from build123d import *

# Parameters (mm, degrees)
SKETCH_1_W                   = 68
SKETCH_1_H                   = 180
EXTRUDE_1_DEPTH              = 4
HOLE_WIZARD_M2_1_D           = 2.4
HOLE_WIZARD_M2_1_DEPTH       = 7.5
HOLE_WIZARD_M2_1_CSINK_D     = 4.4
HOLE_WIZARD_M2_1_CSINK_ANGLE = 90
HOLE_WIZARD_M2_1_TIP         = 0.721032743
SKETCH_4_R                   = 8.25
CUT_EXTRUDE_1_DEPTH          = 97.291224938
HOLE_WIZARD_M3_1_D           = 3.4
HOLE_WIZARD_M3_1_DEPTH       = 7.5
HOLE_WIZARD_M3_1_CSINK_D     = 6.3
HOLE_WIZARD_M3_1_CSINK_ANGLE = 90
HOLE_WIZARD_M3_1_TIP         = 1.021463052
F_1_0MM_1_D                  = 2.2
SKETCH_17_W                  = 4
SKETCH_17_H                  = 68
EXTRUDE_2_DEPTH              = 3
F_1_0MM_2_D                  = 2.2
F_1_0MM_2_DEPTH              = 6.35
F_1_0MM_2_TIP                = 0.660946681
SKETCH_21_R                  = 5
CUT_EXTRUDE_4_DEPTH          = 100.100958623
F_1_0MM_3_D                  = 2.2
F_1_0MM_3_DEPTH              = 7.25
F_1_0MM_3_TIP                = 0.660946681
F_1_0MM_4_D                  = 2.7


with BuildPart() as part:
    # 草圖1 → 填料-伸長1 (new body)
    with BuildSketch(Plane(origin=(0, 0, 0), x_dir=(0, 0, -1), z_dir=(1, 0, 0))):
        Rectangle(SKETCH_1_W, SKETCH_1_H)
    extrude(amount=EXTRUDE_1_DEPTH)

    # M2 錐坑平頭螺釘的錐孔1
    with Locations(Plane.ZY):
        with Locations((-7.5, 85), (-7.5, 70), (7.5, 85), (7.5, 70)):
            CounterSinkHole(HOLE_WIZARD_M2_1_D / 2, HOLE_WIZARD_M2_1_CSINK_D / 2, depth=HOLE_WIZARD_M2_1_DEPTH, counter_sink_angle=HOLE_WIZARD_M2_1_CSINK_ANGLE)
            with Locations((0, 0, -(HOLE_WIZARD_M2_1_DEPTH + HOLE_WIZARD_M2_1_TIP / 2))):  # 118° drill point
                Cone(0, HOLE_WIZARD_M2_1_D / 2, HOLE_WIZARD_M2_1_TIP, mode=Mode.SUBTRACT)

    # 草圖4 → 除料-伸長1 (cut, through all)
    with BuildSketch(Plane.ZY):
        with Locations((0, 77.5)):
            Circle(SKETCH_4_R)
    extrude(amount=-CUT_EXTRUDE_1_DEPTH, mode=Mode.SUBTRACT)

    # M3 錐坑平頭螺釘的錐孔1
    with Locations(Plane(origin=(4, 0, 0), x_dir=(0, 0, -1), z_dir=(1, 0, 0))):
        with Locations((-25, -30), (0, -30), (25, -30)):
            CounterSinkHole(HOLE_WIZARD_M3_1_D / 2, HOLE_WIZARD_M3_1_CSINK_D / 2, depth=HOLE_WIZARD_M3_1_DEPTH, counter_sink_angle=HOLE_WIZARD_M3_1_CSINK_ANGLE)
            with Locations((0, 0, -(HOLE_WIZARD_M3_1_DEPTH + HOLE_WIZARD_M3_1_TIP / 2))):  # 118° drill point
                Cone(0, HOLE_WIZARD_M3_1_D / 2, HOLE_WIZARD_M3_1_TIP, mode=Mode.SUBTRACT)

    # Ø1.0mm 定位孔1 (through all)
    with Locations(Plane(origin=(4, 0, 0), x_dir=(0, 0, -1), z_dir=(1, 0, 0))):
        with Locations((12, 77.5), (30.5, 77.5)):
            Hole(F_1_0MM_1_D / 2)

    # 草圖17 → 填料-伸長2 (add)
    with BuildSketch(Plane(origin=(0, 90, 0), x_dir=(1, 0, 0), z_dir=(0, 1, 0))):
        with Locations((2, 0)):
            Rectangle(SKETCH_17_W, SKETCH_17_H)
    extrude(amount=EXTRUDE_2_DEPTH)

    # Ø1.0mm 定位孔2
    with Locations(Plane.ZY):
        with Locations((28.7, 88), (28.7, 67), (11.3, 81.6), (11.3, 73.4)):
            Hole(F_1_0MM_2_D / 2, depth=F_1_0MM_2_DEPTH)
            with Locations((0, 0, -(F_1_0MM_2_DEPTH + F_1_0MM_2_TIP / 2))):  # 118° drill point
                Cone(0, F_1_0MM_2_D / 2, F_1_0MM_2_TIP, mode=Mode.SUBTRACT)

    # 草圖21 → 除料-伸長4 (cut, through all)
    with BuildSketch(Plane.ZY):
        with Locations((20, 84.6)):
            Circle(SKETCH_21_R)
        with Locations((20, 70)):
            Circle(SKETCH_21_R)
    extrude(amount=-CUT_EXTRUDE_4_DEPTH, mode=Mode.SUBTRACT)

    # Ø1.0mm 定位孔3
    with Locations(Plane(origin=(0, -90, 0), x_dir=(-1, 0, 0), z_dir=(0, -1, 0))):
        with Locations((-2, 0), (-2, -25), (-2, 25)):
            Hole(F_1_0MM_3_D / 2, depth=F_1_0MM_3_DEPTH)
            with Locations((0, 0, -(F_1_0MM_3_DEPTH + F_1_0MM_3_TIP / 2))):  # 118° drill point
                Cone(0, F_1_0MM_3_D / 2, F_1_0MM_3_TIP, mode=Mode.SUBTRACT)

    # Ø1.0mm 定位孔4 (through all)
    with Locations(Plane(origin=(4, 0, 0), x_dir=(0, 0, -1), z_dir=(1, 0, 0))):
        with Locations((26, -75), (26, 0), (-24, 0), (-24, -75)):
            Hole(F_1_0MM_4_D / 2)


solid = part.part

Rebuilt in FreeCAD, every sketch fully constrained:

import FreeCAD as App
import Part
import Sketcher

V = App.Vector


def add_polygon(sketch, points):
    """Adds a closed chain of lines whose ends are joined by coincident constraints."""
    first, n = sketch.GeometryCount, len(points)
    for a, b in zip(points, points[1:] + points[:1]):
        sketch.addGeometry(Part.LineSegment(App.Vector(*a, 0), App.Vector(*b, 0)), False)
    for i in range(n):
        sketch.addConstraint(Sketcher.Constraint("Coincident", first + i, 2, first + (i + 1) % n, 1))

doc = App.newDocument("Part")
body = doc.addObject("PartDesign::Body", "Body")

# Sketch on YZ plane
sketch1 = doc.addObject("Sketcher::SketchObject", "Sketch")
body.addObject(sketch1)
sketch1.AttachmentSupport = (doc.YZ_Plane, [""])
sketch1.MapMode = "FlatFace"
add_polygon(sketch1, [(90, 34), (-90, 34), (-90, -34), (90, -34)])  # lines 0-3
sketch1.addConstraint(Sketcher.Constraint("Horizontal", 0))
sketch1.addConstraint(Sketcher.Constraint("Vertical", 1))
sketch1.addConstraint(Sketcher.Constraint("Horizontal", 2))
sketch1.addConstraint(Sketcher.Constraint("Vertical", 3))
sketch1.addConstraint(Sketcher.Constraint("Symmetric", 0, 2, 2, 2, -1, 1))
sketch1.addConstraint(Sketcher.Constraint("DistanceX", 0, 2, 0, 1, 180.0))
sketch1.addConstraint(Sketcher.Constraint("DistanceY", 1, 2, 1, 1, 68.0))
pad1 = doc.addObject("PartDesign::Pad", "Pad")
body.addObject(pad1)
pad1.Profile = sketch1
pad1.Length = 4

# Sketch on YZ plane
sketch2 = doc.addObject("Sketcher::SketchObject", "Sketch001")
body.addObject(sketch2)
sketch2.AttachmentSupport = (doc.YZ_Plane, [""])
sketch2.MapMode = "FlatFace"
sketch2.addGeometry(Part.Circle(V(85, -7.5, 0), V(0, 0, 1), 1.2), False)
sketch2.addGeometry(Part.Circle(V(70, -7.5, 0), V(0, 0, 1), 1.2), False)
sketch2.addGeometry(Part.Circle(V(85, 7.5, 0), V(0, 0, 1), 1.2), False)
sketch2.addGeometry(Part.Circle(V(70, 7.5, 0), V(0, 0, 1), 1.2), False)
sketch2.addConstraint(Sketcher.Constraint("Equal", 0, 1))
sketch2.addConstraint(Sketcher.Constraint("Equal", 1, 2))
sketch2.addConstraint(Sketcher.Constraint("Equal", 2, 3))
sketch2.addConstraint(Sketcher.Constraint("Symmetric", 0, 3, 2, 3, -1))
sketch2.addConstraint(Sketcher.Constraint("Symmetric", 1, 3, 3, 3, -1))
sketch2.addConstraint(Sketcher.Constraint("Horizontal", 0, 3, 1, 3))
sketch2.addConstraint(Sketcher.Constraint("Diameter", 0, 2.4))
sketch2.addConstraint(Sketcher.Constraint("DistanceX", -1, 1, 0, 3, 85.0))
sketch2.addConstraint(Sketcher.Constraint("DistanceX", -1, 1, 1, 3, 70.0))
sketch2.addConstraint(Sketcher.Constraint("DistanceY", 0, 3, 2, 3, 15.0))
doc.recompute()
hole = doc.addObject("PartDesign::Hole", "Hole")
body.addObject(hole)
hole.Profile = sketch2
hole.ThreadType = "None"
hole.Diameter = 2.4
hole.DepthType = "Dimension"
hole.Depth = 7.5
hole.DrillPoint = "Angled"
hole.DrillPointAngle = 118
hole.HoleCutType = "Countersink"
hole.HoleCutDiameter = 4.4
hole.HoleCutCountersinkAngle = 90
hole.Reversed = True

# Sketch on YZ plane
sketch3 = doc.addObject("Sketcher::SketchObject", "Sketch002")
body.addObject(sketch3)
sketch3.AttachmentSupport = (doc.YZ_Plane, [""])
sketch3.MapMode = "FlatFace"
sketch3.addGeometry(Part.Circle(V(78, 0, 0), V(0, 0, 1), 8), False)
sketch3.addConstraint(Sketcher.Constraint("PointOnObject", 0, 3, -1))
sketch3.addConstraint(Sketcher.Constraint("Diameter", 0, 16.5))
sketch3.addConstraint(Sketcher.Constraint("DistanceX", -1, 1, 0, 3, 77.5))
pocket1 = doc.addObject("PartDesign::Pocket", "Pocket")
body.addObject(pocket1)
pocket1.Profile = sketch3
pocket1.Type = "ThroughAll"
pocket1.Reversed = True

# Sketch on YZ plane
sketch4 = doc.addObject("Sketcher::SketchObject", "Sketch003")
body.addObject(sketch4)
sketch4.AttachmentSupport = (doc.YZ_Plane, [""])
sketch4.MapMode = "FlatFace"
sketch4.AttachmentOffset = App.Placement(V(0, 0, 4), App.Rotation())
sketch4.addGeometry(Part.Circle(V(-30, 25, 0), V(0, 0, 1), 1.7), False)
sketch4.addGeometry(Part.Circle(V(-30, 0, 0), V(0, 0, 1), 1.7), False)
sketch4.addGeometry(Part.Circle(V(-30, -25, 0), V(0, 0, 1), 1.7), False)
sketch4.addConstraint(Sketcher.Constraint("Equal", 0, 1))
sketch4.addConstraint(Sketcher.Constraint("Equal", 1, 2))
sketch4.addConstraint(Sketcher.Constraint("Symmetric", 0, 3, 2, 3, -1))
sketch4.addConstraint(Sketcher.Constraint("PointOnObject", 1, 3, -1))
sketch4.addConstraint(Sketcher.Constraint("Vertical", 0, 3, 1, 3))
sketch4.addConstraint(Sketcher.Constraint("Diameter", 0, 3.4))
sketch4.addConstraint(Sketcher.Constraint("DistanceX", 0, 3, -1, 1, 30.0))
sketch4.addConstraint(Sketcher.Constraint("DistanceY", -1, 1, 0, 3, 25.0))
doc.recompute()
hole2 = doc.addObject("PartDesign::Hole", "Hole001")
body.addObject(hole2)
hole2.Profile = sketch4
hole2.ThreadType = "None"
hole2.Diameter = 3.4
hole2.DepthType = "Dimension"
hole2.Depth = 7.5
hole2.DrillPoint = "Angled"
hole2.DrillPointAngle = 118
hole2.HoleCutType = "Countersink"
hole2.HoleCutDiameter = 6.3
hole2.HoleCutCountersinkAngle = 90

# Sketch on YZ plane
sketch5 = doc.addObject("Sketcher::SketchObject", "Sketch004")
body.addObject(sketch5)
sketch5.AttachmentSupport = (doc.YZ_Plane, [""])
sketch5.MapMode = "FlatFace"
sketch5.AttachmentOffset = App.Placement(V(0, 0, 4), App.Rotation())
sketch5.addGeometry(Part.Circle(V(77.5, -12, 0), V(0, 0, 1), 1.1), False)
sketch5.addGeometry(Part.Circle(V(77.5, -30.5, 0), V(0, 0, 1), 1.1), False)
sketch5.addConstraint(Sketcher.Constraint("Equal", 0, 1))
sketch5.addConstraint(Sketcher.Constraint("Vertical", 0, 3, 1, 3))
sketch5.addConstraint(Sketcher.Constraint("Diameter", 0, 2.2))
sketch5.addConstraint(Sketcher.Constraint("DistanceY", 0, 3, -1, 1, 12.0))
sketch5.addConstraint(Sketcher.Constraint("DistanceX", -1, 1, 0, 3, 77.5))
sketch5.addConstraint(Sketcher.Constraint("DistanceY", 1, 3, -1, 1, 30.5))
doc.recompute()
hole3 = doc.addObject("PartDesign::Hole", "Hole002")
body.addObject(hole3)
hole3.Profile = sketch5
hole3.ThreadType = "None"
hole3.Diameter = 2.2
hole3.DepthType = "ThroughAll"

# Sketch on XZ plane
sketch6 = doc.addObject("Sketcher::SketchObject", "Sketch005")
body.addObject(sketch6)
sketch6.AttachmentSupport = (doc.XZ_Plane, [""])
sketch6.MapMode = "FlatFace"
sketch6.AttachmentOffset = App.Placement(V(0, 0, -90), App.Rotation())
add_polygon(sketch6, [(0, -34), (0, 34), (4, 34), (4, -34)])  # lines 0-3
sketch6.addConstraint(Sketcher.Constraint("Vertical", 0))
sketch6.addConstraint(Sketcher.Constraint("Horizontal", 1))
sketch6.addConstraint(Sketcher.Constraint("Vertical", 2))
sketch6.addConstraint(Sketcher.Constraint("Horizontal", 3))
sketch6.addConstraint(Sketcher.Constraint("Symmetric", 0, 2, 3, 2, -1, 1))
sketch6.addConstraint(Sketcher.Constraint("DistanceX", 1, 1, 1, 2, 4.0))
sketch6.addConstraint(Sketcher.Constraint("DistanceY", 0, 1, 0, 2, 68.0))
pad2 = doc.addObject("PartDesign::Pad", "Pad001")
body.addObject(pad2)
pad2.Profile = sketch6
pad2.Length = 3
pad2.Reversed = True

# Sketch on YZ plane
sketch7 = doc.addObject("Sketcher::SketchObject", "Sketch006")
body.addObject(sketch7)
sketch7.AttachmentSupport = (doc.YZ_Plane, [""])
sketch7.MapMode = "FlatFace"
sketch7.addGeometry(Part.Circle(V(88, 28.7, 0), V(0, 0, 1), 1.1), False)
sketch7.addGeometry(Part.Circle(V(67, 28.7, 0), V(0, 0, 1), 1.1), False)
sketch7.addGeometry(Part.Circle(V(81.6, 11.3, 0), V(0, 0, 1), 1.1), False)
sketch7.addGeometry(Part.Circle(V(73.4, 11.3, 0), V(0, 0, 1), 1.1), False)
sketch7.addConstraint(Sketcher.Constraint("Equal", 0, 1))
sketch7.addConstraint(Sketcher.Constraint("Equal", 1, 2))
sketch7.addConstraint(Sketcher.Constraint("Equal", 2, 3))
sketch7.addConstraint(Sketcher.Constraint("Horizontal", 0, 3, 1, 3))
sketch7.addConstraint(Sketcher.Constraint("Horizontal", 2, 3, 3, 3))
sketch7.addConstraint(Sketcher.Constraint("Diameter", 0, 2.2))
sketch7.addConstraint(Sketcher.Constraint("DistanceX", -1, 1, 0, 3, 88.0))
sketch7.addConstraint(Sketcher.Constraint("DistanceX", -1, 1, 1, 3, 67.0))
sketch7.addConstraint(Sketcher.Constraint("DistanceY", -1, 1, 0, 3, 28.7))
sketch7.addConstraint(Sketcher.Constraint("DistanceX", -1, 1, 2, 3, 81.6))
sketch7.addConstraint(Sketcher.Constraint("DistanceY", -1, 1, 2, 3, 11.3))
sketch7.addConstraint(Sketcher.Constraint("DistanceX", -1, 1, 3, 3, 73.4))
doc.recompute()
hole4 = doc.addObject("PartDesign::Hole", "Hole003")
body.addObject(hole4)
hole4.Profile = sketch7
hole4.ThreadType = "None"
hole4.Diameter = 2.2
hole4.DepthType = "Dimension"
hole4.Depth = 6.35
hole4.DrillPoint = "Angled"
hole4.DrillPointAngle = 118
hole4.Reversed = True

# Sketch on YZ plane
sketch8 = doc.addObject("Sketcher::SketchObject", "Sketch007")
body.addObject(sketch8)
sketch8.AttachmentSupport = (doc.YZ_Plane, [""])
sketch8.MapMode = "FlatFace"
sketch8.addGeometry(Part.Circle(V(85, 20, 0), V(0, 0, 1), 5), False)
sketch8.addGeometry(Part.Circle(V(70, 20, 0), V(0, 0, 1), 5), False)
sketch8.addConstraint(Sketcher.Constraint("Equal", 0, 1))
sketch8.addConstraint(Sketcher.Constraint("Horizontal", 0, 3, 1, 3))
sketch8.addConstraint(Sketcher.Constraint("Diameter", 0, 10.0))
sketch8.addConstraint(Sketcher.Constraint("DistanceY", -1, 1, 0, 3, 20.0))
sketch8.addConstraint(Sketcher.Constraint("DistanceX", -1, 1, 1, 3, 70.0))
sketch8.addConstraint(Sketcher.Constraint("DistanceX", -1, 1, 0, 3, 84.6))
pocket2 = doc.addObject("PartDesign::Pocket", "Pocket001")
body.addObject(pocket2)
pocket2.Profile = sketch8
pocket2.Type = "ThroughAll"
pocket2.Reversed = True

# Sketch on XZ plane
sketch9 = doc.addObject("Sketcher::SketchObject", "Sketch008")
body.addObject(sketch9)
sketch9.AttachmentSupport = (doc.XZ_Plane, [""])
sketch9.MapMode = "FlatFace"
sketch9.AttachmentOffset = App.Placement(V(0, 0, 90), App.Rotation())
sketch9.addGeometry(Part.Circle(V(2, 0, 0), V(0, 0, 1), 1.1), False)
sketch9.addGeometry(Part.Circle(V(2, 25, 0), V(0, 0, 1), 1.1), False)
sketch9.addGeometry(Part.Circle(V(2, -25, 0), V(0, 0, 1), 1.1), False)
sketch9.addConstraint(Sketcher.Constraint("Equal", 0, 1))
sketch9.addConstraint(Sketcher.Constraint("Equal", 1, 2))
sketch9.addConstraint(Sketcher.Constraint("Symmetric", 1, 3, 2, 3, -1))
sketch9.addConstraint(Sketcher.Constraint("PointOnObject", 0, 3, -1))
sketch9.addConstraint(Sketcher.Constraint("Vertical", 0, 3, 1, 3))
sketch9.addConstraint(Sketcher.Constraint("Diameter", 0, 2.2))
sketch9.addConstraint(Sketcher.Constraint("DistanceX", -1, 1, 0, 3, 2.0))
sketch9.addConstraint(Sketcher.Constraint("DistanceY", -1, 1, 1, 3, 25.0))
doc.recompute()
hole5 = doc.addObject("PartDesign::Hole", "Hole004")
body.addObject(hole5)
hole5.Profile = sketch9
hole5.ThreadType = "None"
hole5.Diameter = 2.2
hole5.DepthType = "Dimension"
hole5.Depth = 7.25
hole5.DrillPoint = "Angled"
hole5.DrillPointAngle = 118

# Sketch on YZ plane
sketch10 = doc.addObject("Sketcher::SketchObject", "Sketch009")
body.addObject(sketch10)
sketch10.AttachmentSupport = (doc.YZ_Plane, [""])
sketch10.MapMode = "FlatFace"
sketch10.AttachmentOffset = App.Placement(V(0, 0, 4), App.Rotation())
sketch10.addGeometry(Part.Circle(V(-75, -26, 0), V(0, 0, 1), 1.4), False)
sketch10.addGeometry(Part.Circle(V(0, -26, 0), V(0, 0, 1), 1.4), False)
sketch10.addGeometry(Part.Circle(V(0, 24, 0), V(0, 0, 1), 1.4), False)
sketch10.addGeometry(Part.Circle(V(-75, 24, 0), V(0, 0, 1), 1.4), False)
sketch10.addConstraint(Sketcher.Constraint("Equal", 0, 1))
sketch10.addConstraint(Sketcher.Constraint("Equal", 1, 2))
sketch10.addConstraint(Sketcher.Constraint("Equal", 2, 3))
sketch10.addConstraint(Sketcher.Constraint("PointOnObject", 1, 3, -2))
sketch10.addConstraint(Sketcher.Constraint("PointOnObject", 2, 3, -2))
sketch10.addConstraint(Sketcher.Constraint("Horizontal", 0, 3, 1, 3))
sketch10.addConstraint(Sketcher.Constraint("Horizontal", 2, 3, 3, 3))
sketch10.addConstraint(Sketcher.Constraint("Vertical", 0, 3, 3, 3))
sketch10.addConstraint(Sketcher.Constraint("Diameter", 0, 2.7))
sketch10.addConstraint(Sketcher.Constraint("DistanceX", 0, 3, -1, 1, 75.0))
sketch10.addConstraint(Sketcher.Constraint("DistanceY", 0, 3, -1, 1, 26.0))
sketch10.addConstraint(Sketcher.Constraint("DistanceY", -1, 1, 2, 3, 24.0))
doc.recompute()
hole6 = doc.addObject("PartDesign::Hole", "Hole005")
body.addObject(hole6)
hole6.Profile = sketch10
hole6.ThreadType = "None"
hole6.Diameter = 2.7
hole6.DepthType = "ThroughAll"

doc.recompute()
